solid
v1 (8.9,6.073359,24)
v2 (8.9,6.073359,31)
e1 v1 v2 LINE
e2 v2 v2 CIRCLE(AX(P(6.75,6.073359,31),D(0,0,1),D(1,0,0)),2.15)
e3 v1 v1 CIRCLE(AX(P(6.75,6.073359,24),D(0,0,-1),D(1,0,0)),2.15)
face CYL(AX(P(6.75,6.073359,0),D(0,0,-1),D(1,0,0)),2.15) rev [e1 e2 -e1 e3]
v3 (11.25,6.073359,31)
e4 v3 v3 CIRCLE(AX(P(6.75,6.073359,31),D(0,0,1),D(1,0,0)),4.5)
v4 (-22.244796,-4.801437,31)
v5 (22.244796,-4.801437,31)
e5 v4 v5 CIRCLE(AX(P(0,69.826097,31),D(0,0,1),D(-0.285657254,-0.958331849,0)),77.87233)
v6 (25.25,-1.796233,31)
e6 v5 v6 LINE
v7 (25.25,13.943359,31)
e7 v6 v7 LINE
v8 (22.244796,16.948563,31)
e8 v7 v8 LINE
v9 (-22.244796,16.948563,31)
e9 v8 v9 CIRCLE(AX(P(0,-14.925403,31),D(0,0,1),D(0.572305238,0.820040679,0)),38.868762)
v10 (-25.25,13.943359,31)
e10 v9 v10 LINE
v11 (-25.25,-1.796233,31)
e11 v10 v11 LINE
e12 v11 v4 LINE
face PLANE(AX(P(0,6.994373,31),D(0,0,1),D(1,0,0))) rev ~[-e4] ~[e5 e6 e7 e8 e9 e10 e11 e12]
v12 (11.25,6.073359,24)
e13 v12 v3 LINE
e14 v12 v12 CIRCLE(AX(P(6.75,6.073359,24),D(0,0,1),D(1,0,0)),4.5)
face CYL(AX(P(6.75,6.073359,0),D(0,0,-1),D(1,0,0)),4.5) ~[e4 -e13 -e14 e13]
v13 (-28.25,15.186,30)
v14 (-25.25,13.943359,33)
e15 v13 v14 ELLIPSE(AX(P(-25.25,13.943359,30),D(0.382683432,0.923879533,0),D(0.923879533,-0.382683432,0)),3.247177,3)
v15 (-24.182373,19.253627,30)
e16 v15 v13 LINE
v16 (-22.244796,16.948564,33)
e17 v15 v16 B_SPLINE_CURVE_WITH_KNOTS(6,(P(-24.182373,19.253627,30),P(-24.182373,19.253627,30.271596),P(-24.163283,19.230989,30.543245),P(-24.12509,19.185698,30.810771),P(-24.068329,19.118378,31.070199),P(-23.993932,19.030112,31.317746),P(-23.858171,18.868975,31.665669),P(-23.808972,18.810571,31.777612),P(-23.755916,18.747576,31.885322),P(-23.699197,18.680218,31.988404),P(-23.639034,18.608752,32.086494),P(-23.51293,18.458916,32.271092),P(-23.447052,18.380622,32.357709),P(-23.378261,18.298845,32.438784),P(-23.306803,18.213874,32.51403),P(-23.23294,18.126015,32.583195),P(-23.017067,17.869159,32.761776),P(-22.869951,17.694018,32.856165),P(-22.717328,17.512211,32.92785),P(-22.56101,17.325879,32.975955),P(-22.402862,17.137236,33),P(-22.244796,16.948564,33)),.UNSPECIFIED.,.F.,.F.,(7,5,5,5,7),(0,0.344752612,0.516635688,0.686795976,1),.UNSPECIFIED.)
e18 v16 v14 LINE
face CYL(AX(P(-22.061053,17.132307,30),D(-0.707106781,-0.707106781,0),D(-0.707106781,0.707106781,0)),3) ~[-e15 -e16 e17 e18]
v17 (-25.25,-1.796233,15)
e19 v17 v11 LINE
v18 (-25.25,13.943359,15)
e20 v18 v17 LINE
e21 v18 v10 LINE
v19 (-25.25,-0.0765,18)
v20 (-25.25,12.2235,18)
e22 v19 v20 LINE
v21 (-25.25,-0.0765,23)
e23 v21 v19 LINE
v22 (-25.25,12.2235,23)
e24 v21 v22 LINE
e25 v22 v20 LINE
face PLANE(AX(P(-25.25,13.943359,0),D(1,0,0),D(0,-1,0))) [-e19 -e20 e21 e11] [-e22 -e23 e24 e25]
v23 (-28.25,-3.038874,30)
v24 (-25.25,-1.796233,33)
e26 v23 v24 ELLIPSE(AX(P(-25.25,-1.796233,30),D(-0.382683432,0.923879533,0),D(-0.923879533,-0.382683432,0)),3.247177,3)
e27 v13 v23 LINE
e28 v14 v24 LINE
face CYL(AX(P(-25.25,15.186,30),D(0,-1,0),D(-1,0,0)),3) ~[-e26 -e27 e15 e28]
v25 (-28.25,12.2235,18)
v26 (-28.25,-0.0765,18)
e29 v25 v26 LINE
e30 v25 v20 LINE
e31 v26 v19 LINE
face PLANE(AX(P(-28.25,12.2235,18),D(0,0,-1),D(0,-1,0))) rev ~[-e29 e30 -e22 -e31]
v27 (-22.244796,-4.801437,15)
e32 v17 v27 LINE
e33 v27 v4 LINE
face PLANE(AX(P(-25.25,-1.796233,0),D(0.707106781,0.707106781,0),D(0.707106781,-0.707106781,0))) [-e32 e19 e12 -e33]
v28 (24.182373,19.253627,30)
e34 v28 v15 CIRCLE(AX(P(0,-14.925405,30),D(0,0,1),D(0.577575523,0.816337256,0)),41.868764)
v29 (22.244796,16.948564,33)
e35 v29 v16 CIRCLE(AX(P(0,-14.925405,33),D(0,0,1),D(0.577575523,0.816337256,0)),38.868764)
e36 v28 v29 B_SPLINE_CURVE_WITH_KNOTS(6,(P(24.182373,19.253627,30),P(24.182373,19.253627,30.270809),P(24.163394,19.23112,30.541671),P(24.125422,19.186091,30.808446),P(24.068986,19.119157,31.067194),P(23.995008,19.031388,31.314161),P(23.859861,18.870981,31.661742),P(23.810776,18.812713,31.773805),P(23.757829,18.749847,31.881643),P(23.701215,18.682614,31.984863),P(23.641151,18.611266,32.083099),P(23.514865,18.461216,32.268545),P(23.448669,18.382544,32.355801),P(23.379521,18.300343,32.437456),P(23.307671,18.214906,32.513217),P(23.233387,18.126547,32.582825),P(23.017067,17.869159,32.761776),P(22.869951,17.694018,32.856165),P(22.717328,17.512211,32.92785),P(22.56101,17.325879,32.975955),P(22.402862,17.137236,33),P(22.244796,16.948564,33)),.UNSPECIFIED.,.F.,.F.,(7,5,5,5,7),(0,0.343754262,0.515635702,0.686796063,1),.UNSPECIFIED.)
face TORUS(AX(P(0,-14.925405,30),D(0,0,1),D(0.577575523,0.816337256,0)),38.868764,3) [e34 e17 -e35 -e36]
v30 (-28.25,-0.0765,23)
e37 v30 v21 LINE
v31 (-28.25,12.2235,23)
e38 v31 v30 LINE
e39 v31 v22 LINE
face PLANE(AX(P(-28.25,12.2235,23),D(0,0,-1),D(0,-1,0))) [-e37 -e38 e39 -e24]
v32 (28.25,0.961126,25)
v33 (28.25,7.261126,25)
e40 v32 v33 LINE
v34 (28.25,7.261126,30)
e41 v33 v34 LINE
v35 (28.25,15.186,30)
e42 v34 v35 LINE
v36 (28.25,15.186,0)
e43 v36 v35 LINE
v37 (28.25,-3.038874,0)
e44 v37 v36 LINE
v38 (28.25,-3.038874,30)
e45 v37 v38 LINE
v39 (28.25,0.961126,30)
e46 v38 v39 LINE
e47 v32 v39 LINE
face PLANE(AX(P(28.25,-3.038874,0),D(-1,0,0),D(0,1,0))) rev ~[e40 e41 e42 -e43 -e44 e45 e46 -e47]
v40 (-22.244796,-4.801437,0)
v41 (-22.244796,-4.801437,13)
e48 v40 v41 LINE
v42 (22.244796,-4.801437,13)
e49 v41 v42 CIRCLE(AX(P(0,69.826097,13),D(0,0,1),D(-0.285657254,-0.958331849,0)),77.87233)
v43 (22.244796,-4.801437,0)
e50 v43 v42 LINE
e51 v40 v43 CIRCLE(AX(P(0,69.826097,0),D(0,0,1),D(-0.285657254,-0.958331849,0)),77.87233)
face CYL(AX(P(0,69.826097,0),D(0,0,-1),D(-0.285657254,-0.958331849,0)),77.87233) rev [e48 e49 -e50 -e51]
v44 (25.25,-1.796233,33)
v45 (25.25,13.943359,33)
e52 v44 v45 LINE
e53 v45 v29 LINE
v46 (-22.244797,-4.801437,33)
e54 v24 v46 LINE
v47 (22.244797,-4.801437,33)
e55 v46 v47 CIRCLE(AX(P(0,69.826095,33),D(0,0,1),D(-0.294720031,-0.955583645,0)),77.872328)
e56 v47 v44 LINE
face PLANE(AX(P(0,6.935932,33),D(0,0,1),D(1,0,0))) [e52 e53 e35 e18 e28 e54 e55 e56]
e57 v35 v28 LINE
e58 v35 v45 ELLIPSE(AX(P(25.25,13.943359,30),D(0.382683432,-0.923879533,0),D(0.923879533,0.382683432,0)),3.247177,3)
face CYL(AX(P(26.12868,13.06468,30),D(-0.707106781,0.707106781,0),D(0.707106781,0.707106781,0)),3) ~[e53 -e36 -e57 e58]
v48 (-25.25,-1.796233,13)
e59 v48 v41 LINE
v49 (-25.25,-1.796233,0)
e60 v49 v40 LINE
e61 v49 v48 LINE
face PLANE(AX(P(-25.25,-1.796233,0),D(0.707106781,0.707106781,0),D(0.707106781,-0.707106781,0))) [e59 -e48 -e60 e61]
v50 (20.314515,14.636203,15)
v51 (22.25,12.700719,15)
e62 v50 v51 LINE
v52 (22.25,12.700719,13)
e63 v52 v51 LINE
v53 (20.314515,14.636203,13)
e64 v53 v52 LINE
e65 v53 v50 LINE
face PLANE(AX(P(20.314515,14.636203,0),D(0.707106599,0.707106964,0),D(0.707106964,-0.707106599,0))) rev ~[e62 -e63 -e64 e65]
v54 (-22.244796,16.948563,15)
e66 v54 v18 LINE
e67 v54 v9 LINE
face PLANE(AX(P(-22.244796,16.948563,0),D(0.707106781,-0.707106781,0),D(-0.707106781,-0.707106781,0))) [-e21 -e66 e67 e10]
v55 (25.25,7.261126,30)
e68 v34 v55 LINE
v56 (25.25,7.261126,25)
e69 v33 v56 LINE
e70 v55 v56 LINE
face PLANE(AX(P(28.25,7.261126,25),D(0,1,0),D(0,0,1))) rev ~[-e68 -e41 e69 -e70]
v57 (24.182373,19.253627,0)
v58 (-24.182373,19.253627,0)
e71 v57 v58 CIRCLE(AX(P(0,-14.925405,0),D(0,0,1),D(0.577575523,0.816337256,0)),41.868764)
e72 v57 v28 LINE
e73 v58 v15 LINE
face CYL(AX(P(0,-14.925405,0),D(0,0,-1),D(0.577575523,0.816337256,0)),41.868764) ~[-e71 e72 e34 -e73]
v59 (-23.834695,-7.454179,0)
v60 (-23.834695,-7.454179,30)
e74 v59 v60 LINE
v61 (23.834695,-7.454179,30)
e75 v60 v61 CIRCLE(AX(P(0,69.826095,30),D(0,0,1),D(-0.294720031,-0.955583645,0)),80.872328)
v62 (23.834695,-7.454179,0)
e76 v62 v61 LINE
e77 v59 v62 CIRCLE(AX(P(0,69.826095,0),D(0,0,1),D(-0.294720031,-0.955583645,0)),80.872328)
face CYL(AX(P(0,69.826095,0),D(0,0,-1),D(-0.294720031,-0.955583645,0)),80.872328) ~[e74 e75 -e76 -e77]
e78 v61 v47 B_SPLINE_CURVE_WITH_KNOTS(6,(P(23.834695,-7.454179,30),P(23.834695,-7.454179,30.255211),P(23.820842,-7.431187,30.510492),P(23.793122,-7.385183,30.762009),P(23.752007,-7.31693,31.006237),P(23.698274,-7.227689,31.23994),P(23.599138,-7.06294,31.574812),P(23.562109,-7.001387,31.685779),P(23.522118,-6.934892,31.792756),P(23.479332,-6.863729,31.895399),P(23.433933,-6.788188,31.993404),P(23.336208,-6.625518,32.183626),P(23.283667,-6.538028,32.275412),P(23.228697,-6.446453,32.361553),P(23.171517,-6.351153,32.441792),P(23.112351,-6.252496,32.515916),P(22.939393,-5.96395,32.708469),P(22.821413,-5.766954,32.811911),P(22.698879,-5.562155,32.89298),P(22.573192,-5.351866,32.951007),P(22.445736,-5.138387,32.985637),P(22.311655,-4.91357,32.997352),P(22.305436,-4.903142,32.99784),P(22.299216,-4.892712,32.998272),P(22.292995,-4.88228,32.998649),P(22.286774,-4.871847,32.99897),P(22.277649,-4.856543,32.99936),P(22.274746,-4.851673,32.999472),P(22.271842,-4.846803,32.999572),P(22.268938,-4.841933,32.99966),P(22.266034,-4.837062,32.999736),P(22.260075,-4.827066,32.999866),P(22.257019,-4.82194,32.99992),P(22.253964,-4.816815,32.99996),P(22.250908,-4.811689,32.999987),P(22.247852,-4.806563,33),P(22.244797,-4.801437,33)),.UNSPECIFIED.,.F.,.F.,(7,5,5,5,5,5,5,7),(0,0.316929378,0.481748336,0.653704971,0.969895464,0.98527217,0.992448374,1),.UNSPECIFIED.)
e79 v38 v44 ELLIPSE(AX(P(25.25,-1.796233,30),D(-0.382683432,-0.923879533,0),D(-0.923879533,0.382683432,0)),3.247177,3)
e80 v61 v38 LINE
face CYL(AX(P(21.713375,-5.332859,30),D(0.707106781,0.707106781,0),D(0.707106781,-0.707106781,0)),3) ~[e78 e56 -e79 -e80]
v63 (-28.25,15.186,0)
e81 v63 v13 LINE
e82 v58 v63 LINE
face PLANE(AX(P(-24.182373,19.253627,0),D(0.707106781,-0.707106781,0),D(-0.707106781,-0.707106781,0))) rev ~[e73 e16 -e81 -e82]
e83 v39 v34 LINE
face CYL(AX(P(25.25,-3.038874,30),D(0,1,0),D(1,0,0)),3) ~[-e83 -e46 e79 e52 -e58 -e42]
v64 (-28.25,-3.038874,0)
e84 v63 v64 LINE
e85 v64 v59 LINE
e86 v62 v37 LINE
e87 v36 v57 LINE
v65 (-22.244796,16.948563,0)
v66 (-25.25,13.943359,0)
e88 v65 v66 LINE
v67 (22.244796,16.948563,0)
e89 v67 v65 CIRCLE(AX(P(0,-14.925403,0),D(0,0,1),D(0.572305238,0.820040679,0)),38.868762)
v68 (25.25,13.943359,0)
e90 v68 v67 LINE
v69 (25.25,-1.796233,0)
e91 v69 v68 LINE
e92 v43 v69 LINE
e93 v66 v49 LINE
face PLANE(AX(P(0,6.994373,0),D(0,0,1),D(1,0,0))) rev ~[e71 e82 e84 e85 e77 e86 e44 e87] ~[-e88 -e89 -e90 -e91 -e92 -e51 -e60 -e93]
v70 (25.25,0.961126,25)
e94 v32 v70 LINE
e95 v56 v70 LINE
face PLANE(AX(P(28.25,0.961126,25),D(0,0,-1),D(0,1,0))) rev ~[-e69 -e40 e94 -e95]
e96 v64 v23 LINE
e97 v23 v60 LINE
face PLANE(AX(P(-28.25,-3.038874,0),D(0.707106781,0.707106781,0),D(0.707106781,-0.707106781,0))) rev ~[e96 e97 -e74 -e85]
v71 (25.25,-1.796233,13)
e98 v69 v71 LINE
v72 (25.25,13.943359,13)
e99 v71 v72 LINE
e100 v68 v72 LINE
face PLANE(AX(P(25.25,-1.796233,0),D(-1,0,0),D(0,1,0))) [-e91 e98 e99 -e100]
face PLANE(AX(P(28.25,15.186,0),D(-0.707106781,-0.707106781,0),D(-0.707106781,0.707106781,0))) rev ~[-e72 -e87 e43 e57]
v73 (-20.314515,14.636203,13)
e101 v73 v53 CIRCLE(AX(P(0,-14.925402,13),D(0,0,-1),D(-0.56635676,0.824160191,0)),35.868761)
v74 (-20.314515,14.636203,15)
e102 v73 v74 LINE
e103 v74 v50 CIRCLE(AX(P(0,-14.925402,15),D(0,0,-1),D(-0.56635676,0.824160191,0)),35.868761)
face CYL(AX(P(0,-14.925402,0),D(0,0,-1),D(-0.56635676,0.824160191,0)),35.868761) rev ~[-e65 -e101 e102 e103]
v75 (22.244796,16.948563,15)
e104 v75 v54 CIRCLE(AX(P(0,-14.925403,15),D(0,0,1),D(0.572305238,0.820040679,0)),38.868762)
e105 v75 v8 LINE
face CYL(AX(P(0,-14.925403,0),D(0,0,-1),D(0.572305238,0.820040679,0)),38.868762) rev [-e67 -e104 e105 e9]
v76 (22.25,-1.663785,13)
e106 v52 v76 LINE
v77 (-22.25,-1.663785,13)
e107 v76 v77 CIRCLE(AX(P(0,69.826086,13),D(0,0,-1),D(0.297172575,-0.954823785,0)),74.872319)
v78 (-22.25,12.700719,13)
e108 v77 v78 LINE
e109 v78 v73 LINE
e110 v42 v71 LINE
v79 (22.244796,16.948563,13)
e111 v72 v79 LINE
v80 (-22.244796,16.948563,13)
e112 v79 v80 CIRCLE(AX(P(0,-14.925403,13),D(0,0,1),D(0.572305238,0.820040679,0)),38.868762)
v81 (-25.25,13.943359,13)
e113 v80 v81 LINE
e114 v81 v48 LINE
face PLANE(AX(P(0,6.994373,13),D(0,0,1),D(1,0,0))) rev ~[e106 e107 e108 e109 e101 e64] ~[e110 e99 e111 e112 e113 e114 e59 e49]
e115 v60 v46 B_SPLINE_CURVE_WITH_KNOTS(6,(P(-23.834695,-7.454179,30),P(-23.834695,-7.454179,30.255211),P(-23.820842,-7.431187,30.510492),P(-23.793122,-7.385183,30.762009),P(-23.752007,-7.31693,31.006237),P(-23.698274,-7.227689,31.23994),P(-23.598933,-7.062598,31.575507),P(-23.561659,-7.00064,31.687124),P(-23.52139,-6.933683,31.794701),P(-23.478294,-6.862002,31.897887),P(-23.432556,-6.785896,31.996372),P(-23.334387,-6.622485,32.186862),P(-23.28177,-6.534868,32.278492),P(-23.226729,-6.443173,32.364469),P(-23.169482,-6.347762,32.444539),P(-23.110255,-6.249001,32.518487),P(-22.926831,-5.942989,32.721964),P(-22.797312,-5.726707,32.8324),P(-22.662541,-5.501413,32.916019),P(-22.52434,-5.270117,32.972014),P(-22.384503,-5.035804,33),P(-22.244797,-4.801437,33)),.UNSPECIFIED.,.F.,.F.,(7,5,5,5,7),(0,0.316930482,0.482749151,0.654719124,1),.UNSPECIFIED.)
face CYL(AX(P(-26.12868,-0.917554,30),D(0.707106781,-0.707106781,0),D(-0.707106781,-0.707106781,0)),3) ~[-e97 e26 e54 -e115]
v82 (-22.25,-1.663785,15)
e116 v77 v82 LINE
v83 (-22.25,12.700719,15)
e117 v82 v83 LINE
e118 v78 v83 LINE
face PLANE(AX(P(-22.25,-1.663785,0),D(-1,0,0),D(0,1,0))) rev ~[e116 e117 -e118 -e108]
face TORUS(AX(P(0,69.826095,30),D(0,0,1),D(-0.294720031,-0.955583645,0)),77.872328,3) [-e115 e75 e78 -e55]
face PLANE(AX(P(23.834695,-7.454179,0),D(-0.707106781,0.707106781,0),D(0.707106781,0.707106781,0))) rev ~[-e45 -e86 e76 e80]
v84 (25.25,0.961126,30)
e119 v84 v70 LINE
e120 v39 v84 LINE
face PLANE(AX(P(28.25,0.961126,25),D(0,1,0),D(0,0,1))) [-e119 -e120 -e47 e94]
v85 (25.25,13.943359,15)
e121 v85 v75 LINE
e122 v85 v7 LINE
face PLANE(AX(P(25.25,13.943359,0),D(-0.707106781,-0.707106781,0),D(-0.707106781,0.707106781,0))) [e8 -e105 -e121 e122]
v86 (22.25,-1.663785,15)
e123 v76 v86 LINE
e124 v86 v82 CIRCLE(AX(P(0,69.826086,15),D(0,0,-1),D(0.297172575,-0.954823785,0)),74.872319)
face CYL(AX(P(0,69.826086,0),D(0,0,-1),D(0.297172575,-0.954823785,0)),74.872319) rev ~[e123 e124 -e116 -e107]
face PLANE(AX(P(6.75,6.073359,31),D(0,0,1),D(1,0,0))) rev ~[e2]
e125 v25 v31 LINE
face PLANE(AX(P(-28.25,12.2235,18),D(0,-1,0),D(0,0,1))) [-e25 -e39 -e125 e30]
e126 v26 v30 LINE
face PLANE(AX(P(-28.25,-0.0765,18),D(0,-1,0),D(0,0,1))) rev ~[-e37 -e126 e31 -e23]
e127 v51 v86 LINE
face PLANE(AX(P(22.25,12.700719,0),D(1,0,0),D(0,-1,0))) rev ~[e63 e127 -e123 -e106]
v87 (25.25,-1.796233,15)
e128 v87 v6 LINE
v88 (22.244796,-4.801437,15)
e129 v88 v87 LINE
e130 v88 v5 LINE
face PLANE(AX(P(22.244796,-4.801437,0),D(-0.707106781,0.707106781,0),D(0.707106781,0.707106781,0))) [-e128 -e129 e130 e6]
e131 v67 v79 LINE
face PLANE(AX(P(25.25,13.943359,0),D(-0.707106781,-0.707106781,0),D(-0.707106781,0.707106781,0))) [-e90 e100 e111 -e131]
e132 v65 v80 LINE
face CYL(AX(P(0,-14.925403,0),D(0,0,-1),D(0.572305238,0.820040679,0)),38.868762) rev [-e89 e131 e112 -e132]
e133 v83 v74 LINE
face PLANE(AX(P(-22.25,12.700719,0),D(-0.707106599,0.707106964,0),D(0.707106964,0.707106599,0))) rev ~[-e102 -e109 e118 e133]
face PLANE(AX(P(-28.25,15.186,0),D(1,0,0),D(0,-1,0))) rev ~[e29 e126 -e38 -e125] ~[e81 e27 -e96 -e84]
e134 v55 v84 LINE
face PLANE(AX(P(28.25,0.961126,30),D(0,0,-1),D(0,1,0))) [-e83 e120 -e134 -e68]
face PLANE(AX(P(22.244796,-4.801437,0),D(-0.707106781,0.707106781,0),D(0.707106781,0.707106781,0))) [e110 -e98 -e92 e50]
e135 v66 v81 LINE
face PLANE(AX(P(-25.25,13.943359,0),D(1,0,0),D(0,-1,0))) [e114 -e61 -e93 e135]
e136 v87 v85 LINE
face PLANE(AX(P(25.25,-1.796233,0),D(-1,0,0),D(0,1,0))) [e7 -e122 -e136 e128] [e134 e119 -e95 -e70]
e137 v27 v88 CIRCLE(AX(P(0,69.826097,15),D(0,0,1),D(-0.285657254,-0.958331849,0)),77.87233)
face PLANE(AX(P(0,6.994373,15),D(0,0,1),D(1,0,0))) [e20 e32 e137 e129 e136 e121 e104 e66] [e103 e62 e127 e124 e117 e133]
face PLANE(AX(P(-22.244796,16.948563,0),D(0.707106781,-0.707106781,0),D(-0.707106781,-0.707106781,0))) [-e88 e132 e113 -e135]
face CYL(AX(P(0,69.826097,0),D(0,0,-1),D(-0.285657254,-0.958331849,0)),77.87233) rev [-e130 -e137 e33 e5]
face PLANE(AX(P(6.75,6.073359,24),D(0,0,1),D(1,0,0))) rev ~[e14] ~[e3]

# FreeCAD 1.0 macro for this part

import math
import FreeCAD as App
import Part
import Sketcher
from FreeCAD import Vector


def edges_at(feature, points):
    """Names of the edges that pass closest to the given points."""
    edges = feature.Shape.Edges
    near = lambda p: min(range(len(edges)), key=lambda i: edges[i].distToShape(Part.Vertex(*p))[0])
    return sorted({f"Edge{near(p) + 1}" for p in points})


def add_polygon(sketch, points):
    """Adds a closed chain of lines whose ends are joined by coincident constraints."""
    first, n = sketch.GeometryCount, len(points)
    for a, b in zip(points, points[1:] + points[:1]):
        sketch.addGeometry(Part.LineSegment(App.Vector(*a, 0), App.Vector(*b, 0)), False)
    for i in range(n):
        sketch.addConstraint(Sketcher.Constraint("Coincident", first + i, 2, first + (i + 1) % n, 1))

doc = App.newDocument("Part")
body = doc.addObject("PartDesign::Body", "Body")

# Sketch on XY plane
sketch1 = body.newObject("Sketcher::SketchObject", "Sketch")
sketch1.AttachmentSupport = (doc.getObject("XY_Plane"), [""])
sketch1.MapMode = "FlatFace"
sketch1.addGeometry(Part.LineSegment(Vector(28.25, -3.038874, 0), Vector(28.25, 15.186, 0)), False)
sketch1.addGeometry(Part.LineSegment(Vector(28.25, 15.186, 0), Vector(24.182373, 19.253627, 0)), False)
sketch1.addGeometry(Part.ArcOfCircle(Part.Circle(Vector(0, -14.925405, 0), Vector(0, 0, 1), 41.868764), math.radians(54.719802), math.radians(125.280198)), False)
sketch1.addGeometry(Part.LineSegment(Vector(-24.182373, 19.253627, 0), Vector(-28.25, 15.186, 0)), False)
sketch1.addGeometry(Part.LineSegment(Vector(-28.25, 15.186, 0), Vector(-28.25, -3.038874, 0)), False)
sketch1.addGeometry(Part.LineSegment(Vector(-28.25, -3.038874, 0), Vector(-23.834695, -7.454179, 0)), False)
sketch1.addGeometry(Part.ArcOfCircle(Part.Circle(Vector(0, 69.826095, 0), Vector(0, 0, 1), 80.872328), math.radians(-107.14075), math.radians(-72.85925)), False)
sketch1.addGeometry(Part.LineSegment(Vector(23.834695, -7.454179, 0), Vector(28.25, -3.038874, 0)), False)
sketch1.addConstraint(Sketcher.Constraint("Coincident", 0, 2, 1, 1))
sketch1.addConstraint(Sketcher.Constraint("Coincident", 1, 2, 2, 1))
sketch1.addConstraint(Sketcher.Constraint("Coincident", 2, 2, 3, 1))
sketch1.addConstraint(Sketcher.Constraint("Coincident", 3, 2, 4, 1))
sketch1.addConstraint(Sketcher.Constraint("Coincident", 4, 2, 5, 1))
sketch1.addConstraint(Sketcher.Constraint("Coincident", 5, 2, 6, 1))
sketch1.addConstraint(Sketcher.Constraint("Coincident", 6, 2, 7, 1))
sketch1.addConstraint(Sketcher.Constraint("Coincident", 7, 2, 0, 1))
sketch1.addConstraint(Sketcher.Constraint("Vertical", 0))
sketch1.addConstraint(Sketcher.Constraint("Vertical", 4))
sketch1.addConstraint(Sketcher.Constraint("Symmetric", 1, 2, 2, 2, -2))
sketch1.addConstraint(Sketcher.Constraint("Symmetric", 0, 2, 3, 2, -2))
sketch1.addConstraint(Sketcher.Constraint("Symmetric", 5, 2, 6, 2, -2))
sketch1.addConstraint(Sketcher.Constraint("Perpendicular", 1, 3))
sketch1.addConstraint(Sketcher.Constraint("Perpendicular", 3, 5))
sketch1.addConstraint(Sketcher.Constraint("Perpendicular", 5, 7))
sketch1.addConstraint(Sketcher.Constraint("DistanceX", 3, 2, 0, 2, 56.5))
sketch1.addConstraint(Sketcher.Constraint("DistanceY", -1, 1, 0, 2, 15.186))
sketch1.addConstraint(Sketcher.Constraint("Radius", 2, 41.868764))
sketch1.addConstraint(Sketcher.Constraint("Radius", 6, 80.872328))
sketch1.addConstraint(Sketcher.Constraint("DistanceY", 2, 3, 6, 3, 84.751499))
sketch1.addConstraint(Sketcher.Constraint("DistanceY", 4, 2, 2, 2, 22.292501))
sketch1.addConstraint(Sketcher.Constraint("DistanceY", 0, 1, 0, 2, 18.224874))
pad1 = body.newObject("PartDesign::Pad", "Pad")
pad1.Profile = sketch1
pad1.Length = 33

# Sketch on XY plane
sketch2 = body.newObject("Sketcher::SketchObject", "Sketch001")
sketch2.AttachmentSupport = (doc.getObject("XY_Plane"), [""])
sketch2.MapMode = "FlatFace"
sketch2.addGeometry(Part.LineSegment(Vector(-25.25, 13.943359, 0), Vector(-25.25, -1.796233, 0)), False)
sketch2.addGeometry(Part.LineSegment(Vector(-25.25, -1.796233, 0), Vector(-22.244796, -4.801437, 0)), False)
sketch2.addGeometry(Part.ArcOfCircle(Part.Circle(Vector(0, 69.826097, 0), Vector(0, 0, 1), 77.87233), math.radians(-106.59814), math.radians(-73.40186)), False)
sketch2.addGeometry(Part.LineSegment(Vector(22.244796, -4.801437, 0), Vector(25.25, -1.796233, 0)), False)
sketch2.addGeometry(Part.LineSegment(Vector(25.25, -1.796233, 0), Vector(25.25, 13.943359, 0)), False)
sketch2.addGeometry(Part.LineSegment(Vector(25.25, 13.943359, 0), Vector(22.244796, 16.948563, 0)), False)
sketch2.addGeometry(Part.ArcOfCircle(Part.Circle(Vector(0, -14.925403, 0), Vector(0, 0, 1), 38.868762), math.radians(55.088866), math.radians(124.911134)), False)
sketch2.addGeometry(Part.LineSegment(Vector(-22.244796, 16.948563, 0), Vector(-25.25, 13.943359, 0)), False)
sketch2.addGeometry(Part.Circle(Vector(6.75, 6.073359, 0), Vector(0, 0, 1), 4.5), False)
sketch2.addConstraint(Sketcher.Constraint("Coincident", 0, 2, 1, 1))
sketch2.addConstraint(Sketcher.Constraint("Coincident", 1, 2, 2, 1))
sketch2.addConstraint(Sketcher.Constraint("Coincident", 2, 2, 3, 1))
sketch2.addConstraint(Sketcher.Constraint("Coincident", 3, 2, 4, 1))
sketch2.addConstraint(Sketcher.Constraint("Coincident", 4, 2, 5, 1))
sketch2.addConstraint(Sketcher.Constraint("Coincident", 5, 2, 6, 1))
sketch2.addConstraint(Sketcher.Constraint("Coincident", 6, 2, 7, 1))
sketch2.addConstraint(Sketcher.Constraint("Coincident", 7, 2, 0, 1))
sketch2.addConstraint(Sketcher.Constraint("Vertical", 0))
sketch2.addConstraint(Sketcher.Constraint("Vertical", 4))
sketch2.addConstraint(Sketcher.Constraint("Symmetric", 1, 2, 2, 2, -2))
sketch2.addConstraint(Sketcher.Constraint("Symmetric", 0, 2, 3, 2, -2))
sketch2.addConstraint(Sketcher.Constraint("Symmetric", 5, 2, 6, 2, -2))
sketch2.addConstraint(Sketcher.Constraint("Perpendicular", 1, 3))
sketch2.addConstraint(Sketcher.Constraint("Perpendicular", 3, 5))
sketch2.addConstraint(Sketcher.Constraint("Perpendicular", 5, 7))
sketch2.addConstraint(Sketcher.Constraint("Vertical", 2, 2, 5, 2))
sketch2.addConstraint(Sketcher.Constraint("Diameter", 8, 9.0))
sketch2.addConstraint(Sketcher.Constraint("DistanceX", 0, 2, 8, 3, 32.0))
sketch2.addConstraint(Sketcher.Constraint("DistanceX", 8, 3, 3, 2, 18.5))
sketch2.addConstraint(Sketcher.Constraint("Distance", 1, 4.25))
sketch2.addConstraint(Sketcher.Constraint("Radius", 2, 77.87233))
sketch2.addConstraint(Sketcher.Constraint("Radius", 6, 38.868762))
sketch2.addConstraint(Sketcher.Constraint("DistanceY", 8, 3, 4, 2, 7.87))
sketch2.addConstraint(Sketcher.Constraint("DistanceY", 2, 2, 5, 2, 21.75))
sketch2.addConstraint(Sketcher.Constraint("DistanceY", -1, 1, 8, 3, 6.073359))
pocket1 = body.newObject("PartDesign::Pocket", "Pocket")
pocket1.Profile = sketch2
pocket1.Length = 31
pocket1.Reversed = True

# Sketch on XY plane
sketch3 = body.newObject("Sketcher::SketchObject", "Sketch002")
sketch3.AttachmentSupport = (doc.getObject("XY_Plane"), [""])
sketch3.MapMode = "FlatFace"
sketch3.addGeometry(Part.LineSegment(Vector(-25.25, 13.943359, 0), Vector(-25.25, -1.796233, 0)), False)
sketch3.addGeometry(Part.LineSegment(Vector(-25.25, -1.796233, 0), Vector(-22.244796, -4.801437, 0)), False)
sketch3.addGeometry(Part.ArcOfCircle(Part.Circle(Vector(0, 69.826097, 0), Vector(0, 0, 1), 77.87233), math.radians(-106.59814), math.radians(-73.40186)), False)
sketch3.addGeometry(Part.LineSegment(Vector(22.244796, -4.801437, 0), Vector(25.25, -1.796233, 0)), False)
sketch3.addGeometry(Part.LineSegment(Vector(25.25, -1.796233, 0), Vector(25.25, 13.943359, 0)), False)
sketch3.addGeometry(Part.LineSegment(Vector(25.25, 13.943359, 0), Vector(22.244796, 16.948563, 0)), False)
sketch3.addGeometry(Part.ArcOfCircle(Part.Circle(Vector(0, -14.925403, 0), Vector(0, 0, 1), 38.868762), math.radians(55.088866), math.radians(124.911134)), False)
sketch3.addGeometry(Part.LineSegment(Vector(-22.244796, 16.948563, 0), Vector(-25.25, 13.943359, 0)), False)
sketch3.addGeometry(Part.ArcOfCircle(Part.Circle(Vector(0, -14.925402, 0), Vector(0, 0, 1), 35.868761), math.radians(55.50344), math.radians(124.49656)), False)
sketch3.addGeometry(Part.LineSegment(Vector(20.314515, 14.636203, 0), Vector(22.25, 12.700719, 0)), False)
sketch3.addGeometry(Part.LineSegment(Vector(22.25, 12.700719, 0), Vector(22.25, -1.663785, 0)), False)
sketch3.addGeometry(Part.ArcOfCircle(Part.Circle(Vector(0, 69.826086, 0), Vector(0, 0, 1), 74.872319), math.radians(-107.28786), math.radians(-72.71214)), False)
sketch3.addGeometry(Part.LineSegment(Vector(-22.25, -1.663785, 0), Vector(-22.25, 12.700719, 0)), False)
sketch3.addGeometry(Part.LineSegment(Vector(-22.25, 12.700719, 0), Vector(-20.314515, 14.636203, 0)), False)
sketch3.addConstraint(Sketcher.Constraint("Coincident", 0, 2, 1, 1))
sketch3.addConstraint(Sketcher.Constraint("Coincident", 1, 2, 2, 1))
sketch3.addConstraint(Sketcher.Constraint("Coincident", 2, 2, 3, 1))
sketch3.addConstraint(Sketcher.Constraint("Coincident", 3, 2, 4, 1))
sketch3.addConstraint(Sketcher.Constraint("Coincident", 4, 2, 5, 1))
sketch3.addConstraint(Sketcher.Constraint("Coincident", 5, 2, 6, 1))
sketch3.addConstraint(Sketcher.Constraint("Coincident", 6, 2, 7, 1))
sketch3.addConstraint(Sketcher.Constraint("Coincident", 7, 2, 0, 1))
sketch3.addConstraint(Sketcher.Constraint("Coincident", 8, 1, 9, 1))
sketch3.addConstraint(Sketcher.Constraint("Coincident", 9, 2, 10, 1))
sketch3.addConstraint(Sketcher.Constraint("Coincident", 10, 2, 11, 2))
sketch3.addConstraint(Sketcher.Constraint("Coincident", 11, 1, 12, 1))
sketch3.addConstraint(Sketcher.Constraint("Coincident", 12, 2, 13, 1))
sketch3.addConstraint(Sketcher.Constraint("Coincident", 13, 2, 8, 2))
sketch3.addConstraint(Sketcher.Constraint("Vertical", 0))
sketch3.addConstraint(Sketcher.Constraint("Vertical", 4))
sketch3.addConstraint(Sketcher.Constraint("Vertical", 10))
sketch3.addConstraint(Sketcher.Constraint("Vertical", 12))
sketch3.addConstraint(Sketcher.Constraint("Coincident", 8, 3, 6, 3))
sketch3.addConstraint(Sketcher.Constraint("Symmetric", 1, 2, 2, 2, -2))
sketch3.addConstraint(Sketcher.Constraint("Symmetric", 0, 2, 3, 2, -2))
sketch3.addConstraint(Sketcher.Constraint("Symmetric", 5, 2, 6, 2, -2))
sketch3.addConstraint(Sketcher.Constraint("Symmetric", 10, 2, 11, 1, -2))
sketch3.addConstraint(Sketcher.Constraint("Perpendicular", 1, 3))
sketch3.addConstraint(Sketcher.Constraint("Perpendicular", 3, 5))
sketch3.addConstraint(Sketcher.Constraint("Perpendicular", 5, 7))
sketch3.addConstraint(Sketcher.Constraint("Perpendicular", 7, 9))
sketch3.addConstraint(Sketcher.Constraint("Perpendicular", 9, 13))
sketch3.addConstraint(Sketcher.Constraint("Horizontal", 9, 2, 12, 2))
sketch3.addConstraint(Sketcher.Constraint("Vertical", 2, 2, 5, 2))
sketch3.addConstraint(Sketcher.Constraint("DistanceX", 9, 2, 4, 2, 3.0))
sketch3.addConstraint(Sketcher.Constraint("DistanceX", 0, 2, 3, 2, 50.5))
sketch3.addConstraint(Sketcher.Constraint("Distance", 1, 4.25))
sketch3.addConstraint(Sketcher.Constraint("Radius", 2, 77.87233))
sketch3.addConstraint(Sketcher.Constraint("Radius", 6, 38.868762))
sketch3.addConstraint(Sketcher.Constraint("Radius", 8, 35.868761))
sketch3.addConstraint(Sketcher.Constraint("Radius", 11, 74.872319))
sketch3.addConstraint(Sketcher.Constraint("DistanceY", 2, 2, 5, 2, 21.75))
sketch3.addConstraint(Sketcher.Constraint("DistanceY", 8, 3, -1, 1, 14.925402))
sketch3.addConstraint(Sketcher.Constraint("Distance", 9, 2.737188))
sketch3.addConstraint(Sketcher.Constraint("DistanceY", 10, 2, 10, 1, 14.364504))
pad2 = body.newObject("PartDesign::Pad", "Pad001")
pad2.Profile = sketch3
pad2.Length = 15

# Sketch on XY plane
sketch4 = body.newObject("Sketcher::SketchObject", "Sketch003")
sketch4.AttachmentSupport = (doc.getObject("XY_Plane"), [""])
sketch4.MapMode = "FlatFace"
sketch4.addGeometry(Part.LineSegment(Vector(-25.25, 13.943359, 0), Vector(-25.25, -1.796233, 0)), False)
sketch4.addGeometry(Part.LineSegment(Vector(-25.25, -1.796233, 0), Vector(-22.244796, -4.801437, 0)), False)
sketch4.addGeometry(Part.ArcOfCircle(Part.Circle(Vector(0, 69.826097, 0), Vector(0, 0, 1), 77.87233), math.radians(-106.59814), math.radians(-73.40186)), False)
sketch4.addGeometry(Part.LineSegment(Vector(22.244796, -4.801437, 0), Vector(25.25, -1.796233, 0)), False)
sketch4.addGeometry(Part.LineSegment(Vector(25.25, -1.796233, 0), Vector(25.25, 13.943359, 0)), False)
sketch4.addGeometry(Part.LineSegment(Vector(25.25, 13.943359, 0), Vector(22.244796, 16.948563, 0)), False)
sketch4.addGeometry(Part.ArcOfCircle(Part.Circle(Vector(0, -14.925403, 0), Vector(0, 0, 1), 38.868762), math.radians(55.088866), math.radians(124.911134)), False)
sketch4.addGeometry(Part.LineSegment(Vector(-22.244796, 16.948563, 0), Vector(-25.25, 13.943359, 0)), False)
sketch4.addGeometry(Part.ArcOfCircle(Part.Circle(Vector(0, -14.925402, 0), Vector(0, 0, 1), 35.868761), math.radians(55.50344), math.radians(124.49656)), False)
sketch4.addGeometry(Part.LineSegment(Vector(20.314515, 14.636203, 0), Vector(22.25, 12.700719, 0)), False)
sketch4.addGeometry(Part.LineSegment(Vector(22.25, 12.700719, 0), Vector(22.25, -1.663785, 0)), False)
sketch4.addGeometry(Part.ArcOfCircle(Part.Circle(Vector(0, 69.826086, 0), Vector(0, 0, 1), 74.872319), math.radians(-107.28786), math.radians(-72.71214)), False)
sketch4.addGeometry(Part.LineSegment(Vector(-22.25, -1.663785, 0), Vector(-22.25, 12.700719, 0)), False)
sketch4.addGeometry(Part.LineSegment(Vector(-22.25, 12.700719, 0), Vector(-20.314515, 14.636203, 0)), False)
sketch4.addConstraint(Sketcher.Constraint("Coincident", 0, 2, 1, 1))
sketch4.addConstraint(Sketcher.Constraint("Coincident", 1, 2, 2, 1))
sketch4.addConstraint(Sketcher.Constraint("Coincident", 2, 2, 3, 1))
sketch4.addConstraint(Sketcher.Constraint("Coincident", 3, 2, 4, 1))
sketch4.addConstraint(Sketcher.Constraint("Coincident", 4, 2, 5, 1))
sketch4.addConstraint(Sketcher.Constraint("Coincident", 5, 2, 6, 1))
sketch4.addConstraint(Sketcher.Constraint("Coincident", 6, 2, 7, 1))
sketch4.addConstraint(Sketcher.Constraint("Coincident", 7, 2, 0, 1))
sketch4.addConstraint(Sketcher.Constraint("Coincident", 8, 1, 9, 1))
sketch4.addConstraint(Sketcher.Constraint("Coincident", 9, 2, 10, 1))
sketch4.addConstraint(Sketcher.Constraint("Coincident", 10, 2, 11, 2))
sketch4.addConstraint(Sketcher.Constraint("Coincident", 11, 1, 12, 1))
sketch4.addConstraint(Sketcher.Constraint("Coincident", 12, 2, 13, 1))
sketch4.addConstraint(Sketcher.Constraint("Coincident", 13, 2, 8, 2))
sketch4.addConstraint(Sketcher.Constraint("Vertical", 0))
sketch4.addConstraint(Sketcher.Constraint("Vertical", 4))
sketch4.addConstraint(Sketcher.Constraint("Vertical", 10))
sketch4.addConstraint(Sketcher.Constraint("Vertical", 12))
sketch4.addConstraint(Sketcher.Constraint("Coincident", 8, 3, 6, 3))
sketch4.addConstraint(Sketcher.Constraint("Symmetric", 1, 2, 2, 2, -2))
sketch4.addConstraint(Sketcher.Constraint("Symmetric", 0, 2, 3, 2, -2))
sketch4.addConstraint(Sketcher.Constraint("Symmetric", 5, 2, 6, 2, -2))
sketch4.addConstraint(Sketcher.Constraint("Symmetric", 10, 2, 11, 1, -2))
sketch4.addConstraint(Sketcher.Constraint("Perpendicular", 1, 3))
sketch4.addConstraint(Sketcher.Constraint("Perpendicular", 3, 5))
sketch4.addConstraint(Sketcher.Constraint("Perpendicular", 5, 7))
sketch4.addConstraint(Sketcher.Constraint("Perpendicular", 7, 9))
sketch4.addConstraint(Sketcher.Constraint("Perpendicular", 9, 13))
sketch4.addConstraint(Sketcher.Constraint("Horizontal", 9, 2, 12, 2))
sketch4.addConstraint(Sketcher.Constraint("Vertical", 2, 2, 5, 2))
sketch4.addConstraint(Sketcher.Constraint("DistanceX", 9, 2, 4, 2, 3.0))
sketch4.addConstraint(Sketcher.Constraint("DistanceX", 0, 2, 3, 2, 50.5))
sketch4.addConstraint(Sketcher.Constraint("Distance", 1, 4.25))
sketch4.addConstraint(Sketcher.Constraint("Radius", 2, 77.87233))
sketch4.addConstraint(Sketcher.Constraint("Radius", 6, 38.868762))
sketch4.addConstraint(Sketcher.Constraint("Radius", 8, 35.868761))
sketch4.addConstraint(Sketcher.Constraint("Radius", 11, 74.872319))
sketch4.addConstraint(Sketcher.Constraint("DistanceY", 2, 2, 5, 2, 21.75))
sketch4.addConstraint(Sketcher.Constraint("DistanceY", 8, 3, -1, 1, 14.925402))
sketch4.addConstraint(Sketcher.Constraint("Distance", 9, 2.737188))
sketch4.addConstraint(Sketcher.Constraint("DistanceY", 10, 2, 10, 1, 14.364504))
pocket2 = body.newObject("PartDesign::Pocket", "Pocket001")
pocket2.Profile = sketch4
pocket2.Length = 13
pocket2.Reversed = True

# Sketch on XY plane
sketch5 = body.newObject("Sketcher::SketchObject", "Sketch004")
sketch5.AttachmentSupport = (doc.getObject("XY_Plane"), [""])
sketch5.MapMode = "FlatFace"
sketch5.addGeometry(Part.Circle(Vector(6.75, 6.073359, 0), Vector(0, 0, 1), 2.15), False)
sketch5.addConstraint(Sketcher.Constraint("Diameter", 0, 4.3))
sketch5.addConstraint(Sketcher.Constraint("DistanceX", -1, 1, 0, 3, 6.75))
sketch5.addConstraint(Sketcher.Constraint("DistanceY", -1, 1, 0, 3, 6.073359))
pocket3 = body.newObject("PartDesign::Pocket", "Pocket002")
pocket3.Profile = sketch5
pocket3.Length = 31
pocket3.Reversed = True
doc.recompute()

fillet = body.newObject("PartDesign::Fillet", "Fillet")
fillet.Base = (pocket3, edges_at(pocket3, [
    (0, -11.046, 33),
    (-28.25, 6.074, 33),
    (0, 26.943, 33),
    (28.25, 6.074, 33),
    (-26.042, -5.247, 33),
    (26.042, -5.247, 33),
    (26.216, 17.22, 33),
    (-26.216, 17.22, 33),
]))
fillet.Radius = 3

# Sketch on XY plane
sketch6 = body.newObject("Sketcher::SketchObject", "Sketch005")
sketch6.AttachmentSupport = (doc.getObject("XY_Plane"), [""])
sketch6.MapMode = "FlatFace"
sketch6.addGeometry(Part.Circle(Vector(6.75, 6.073359, 0), Vector(0, 0, 1), 4.5), False)
sketch6.addConstraint(Sketcher.Constraint("Diameter", 0, 9.0))
sketch6.addConstraint(Sketcher.Constraint("DistanceX", -1, 1, 0, 3, 6.75))
sketch6.addConstraint(Sketcher.Constraint("DistanceY", -1, 1, 0, 3, 6.073359))
pocket4 = body.newObject("PartDesign::Pocket", "Pocket003")
pocket4.Profile = sketch6
pocket4.Length = 24
pocket4.Reversed = True

# Sketch on YZ plane
sketch7 = body.newObject("Sketcher::SketchObject", "Sketch006")
sketch7.AttachmentSupport = (doc.getObject("YZ_Plane"), [""])
sketch7.MapMode = "FlatFace"
sketch7.AttachmentOffset = App.Placement(Vector(0, 0, 28.25), App.Rotation())
add_polygon(sketch7, [(0.961126, 30), (0.961126, 25), (7.261126, 25), (7.261126, 30)])  # lines 0-3
sketch7.addConstraint(Sketcher.Constraint("Vertical", 0))
sketch7.addConstraint(Sketcher.Constraint("Horizontal", 1))
sketch7.addConstraint(Sketcher.Constraint("Vertical", 2))
sketch7.addConstraint(Sketcher.Constraint("Horizontal", 3))
sketch7.addConstraint(Sketcher.Constraint("DistanceY", 0, 2, 0, 1, 5.0))
sketch7.addConstraint(Sketcher.Constraint("DistanceX", 1, 1, 1, 2, 6.3))
sketch7.addConstraint(Sketcher.Constraint("DistanceY", -1, 1, 0, 2, 25.0))
sketch7.addConstraint(Sketcher.Constraint("DistanceX", -1, 1, 0, 2, 0.961126))
pocket5 = body.newObject("PartDesign::Pocket", "Pocket004")
pocket5.Profile = sketch7
pocket5.Length = 4

# Sketch on YZ plane
sketch8 = body.newObject("Sketcher::SketchObject", "Sketch007")
sketch8.AttachmentSupport = (doc.getObject("YZ_Plane"), [""])
sketch8.MapMode = "FlatFace"
sketch8.AttachmentOffset = App.Placement(Vector(0, 0, -28.25), App.Rotation())
add_polygon(sketch8, [(12.2235, 23), (12.2235, 18), (-0.0765, 18), (-0.0765, 23)])  # lines 0-3
sketch8.addConstraint(Sketcher.Constraint("Vertical", 0))
sketch8.addConstraint(Sketcher.Constraint("Horizontal", 1))
sketch8.addConstraint(Sketcher.Constraint("Vertical", 2))
sketch8.addConstraint(Sketcher.Constraint("Horizontal", 3))
sketch8.addConstraint(Sketcher.Constraint("DistanceY", 0, 2, 0, 1, 5.0))
sketch8.addConstraint(Sketcher.Constraint("DistanceX", 1, 2, 1, 1, 12.3))
sketch8.addConstraint(Sketcher.Constraint("DistanceY", -1, 1, 0, 2, 18.0))
sketch8.addConstraint(Sketcher.Constraint("DistanceX", -1, 1, 0, 2, 12.2235))
pocket6 = body.newObject("PartDesign::Pocket", "Pocket005")
pocket6.Profile = sketch8
pocket6.Length = 4
pocket6.Reversed = True

doc.recompute()
